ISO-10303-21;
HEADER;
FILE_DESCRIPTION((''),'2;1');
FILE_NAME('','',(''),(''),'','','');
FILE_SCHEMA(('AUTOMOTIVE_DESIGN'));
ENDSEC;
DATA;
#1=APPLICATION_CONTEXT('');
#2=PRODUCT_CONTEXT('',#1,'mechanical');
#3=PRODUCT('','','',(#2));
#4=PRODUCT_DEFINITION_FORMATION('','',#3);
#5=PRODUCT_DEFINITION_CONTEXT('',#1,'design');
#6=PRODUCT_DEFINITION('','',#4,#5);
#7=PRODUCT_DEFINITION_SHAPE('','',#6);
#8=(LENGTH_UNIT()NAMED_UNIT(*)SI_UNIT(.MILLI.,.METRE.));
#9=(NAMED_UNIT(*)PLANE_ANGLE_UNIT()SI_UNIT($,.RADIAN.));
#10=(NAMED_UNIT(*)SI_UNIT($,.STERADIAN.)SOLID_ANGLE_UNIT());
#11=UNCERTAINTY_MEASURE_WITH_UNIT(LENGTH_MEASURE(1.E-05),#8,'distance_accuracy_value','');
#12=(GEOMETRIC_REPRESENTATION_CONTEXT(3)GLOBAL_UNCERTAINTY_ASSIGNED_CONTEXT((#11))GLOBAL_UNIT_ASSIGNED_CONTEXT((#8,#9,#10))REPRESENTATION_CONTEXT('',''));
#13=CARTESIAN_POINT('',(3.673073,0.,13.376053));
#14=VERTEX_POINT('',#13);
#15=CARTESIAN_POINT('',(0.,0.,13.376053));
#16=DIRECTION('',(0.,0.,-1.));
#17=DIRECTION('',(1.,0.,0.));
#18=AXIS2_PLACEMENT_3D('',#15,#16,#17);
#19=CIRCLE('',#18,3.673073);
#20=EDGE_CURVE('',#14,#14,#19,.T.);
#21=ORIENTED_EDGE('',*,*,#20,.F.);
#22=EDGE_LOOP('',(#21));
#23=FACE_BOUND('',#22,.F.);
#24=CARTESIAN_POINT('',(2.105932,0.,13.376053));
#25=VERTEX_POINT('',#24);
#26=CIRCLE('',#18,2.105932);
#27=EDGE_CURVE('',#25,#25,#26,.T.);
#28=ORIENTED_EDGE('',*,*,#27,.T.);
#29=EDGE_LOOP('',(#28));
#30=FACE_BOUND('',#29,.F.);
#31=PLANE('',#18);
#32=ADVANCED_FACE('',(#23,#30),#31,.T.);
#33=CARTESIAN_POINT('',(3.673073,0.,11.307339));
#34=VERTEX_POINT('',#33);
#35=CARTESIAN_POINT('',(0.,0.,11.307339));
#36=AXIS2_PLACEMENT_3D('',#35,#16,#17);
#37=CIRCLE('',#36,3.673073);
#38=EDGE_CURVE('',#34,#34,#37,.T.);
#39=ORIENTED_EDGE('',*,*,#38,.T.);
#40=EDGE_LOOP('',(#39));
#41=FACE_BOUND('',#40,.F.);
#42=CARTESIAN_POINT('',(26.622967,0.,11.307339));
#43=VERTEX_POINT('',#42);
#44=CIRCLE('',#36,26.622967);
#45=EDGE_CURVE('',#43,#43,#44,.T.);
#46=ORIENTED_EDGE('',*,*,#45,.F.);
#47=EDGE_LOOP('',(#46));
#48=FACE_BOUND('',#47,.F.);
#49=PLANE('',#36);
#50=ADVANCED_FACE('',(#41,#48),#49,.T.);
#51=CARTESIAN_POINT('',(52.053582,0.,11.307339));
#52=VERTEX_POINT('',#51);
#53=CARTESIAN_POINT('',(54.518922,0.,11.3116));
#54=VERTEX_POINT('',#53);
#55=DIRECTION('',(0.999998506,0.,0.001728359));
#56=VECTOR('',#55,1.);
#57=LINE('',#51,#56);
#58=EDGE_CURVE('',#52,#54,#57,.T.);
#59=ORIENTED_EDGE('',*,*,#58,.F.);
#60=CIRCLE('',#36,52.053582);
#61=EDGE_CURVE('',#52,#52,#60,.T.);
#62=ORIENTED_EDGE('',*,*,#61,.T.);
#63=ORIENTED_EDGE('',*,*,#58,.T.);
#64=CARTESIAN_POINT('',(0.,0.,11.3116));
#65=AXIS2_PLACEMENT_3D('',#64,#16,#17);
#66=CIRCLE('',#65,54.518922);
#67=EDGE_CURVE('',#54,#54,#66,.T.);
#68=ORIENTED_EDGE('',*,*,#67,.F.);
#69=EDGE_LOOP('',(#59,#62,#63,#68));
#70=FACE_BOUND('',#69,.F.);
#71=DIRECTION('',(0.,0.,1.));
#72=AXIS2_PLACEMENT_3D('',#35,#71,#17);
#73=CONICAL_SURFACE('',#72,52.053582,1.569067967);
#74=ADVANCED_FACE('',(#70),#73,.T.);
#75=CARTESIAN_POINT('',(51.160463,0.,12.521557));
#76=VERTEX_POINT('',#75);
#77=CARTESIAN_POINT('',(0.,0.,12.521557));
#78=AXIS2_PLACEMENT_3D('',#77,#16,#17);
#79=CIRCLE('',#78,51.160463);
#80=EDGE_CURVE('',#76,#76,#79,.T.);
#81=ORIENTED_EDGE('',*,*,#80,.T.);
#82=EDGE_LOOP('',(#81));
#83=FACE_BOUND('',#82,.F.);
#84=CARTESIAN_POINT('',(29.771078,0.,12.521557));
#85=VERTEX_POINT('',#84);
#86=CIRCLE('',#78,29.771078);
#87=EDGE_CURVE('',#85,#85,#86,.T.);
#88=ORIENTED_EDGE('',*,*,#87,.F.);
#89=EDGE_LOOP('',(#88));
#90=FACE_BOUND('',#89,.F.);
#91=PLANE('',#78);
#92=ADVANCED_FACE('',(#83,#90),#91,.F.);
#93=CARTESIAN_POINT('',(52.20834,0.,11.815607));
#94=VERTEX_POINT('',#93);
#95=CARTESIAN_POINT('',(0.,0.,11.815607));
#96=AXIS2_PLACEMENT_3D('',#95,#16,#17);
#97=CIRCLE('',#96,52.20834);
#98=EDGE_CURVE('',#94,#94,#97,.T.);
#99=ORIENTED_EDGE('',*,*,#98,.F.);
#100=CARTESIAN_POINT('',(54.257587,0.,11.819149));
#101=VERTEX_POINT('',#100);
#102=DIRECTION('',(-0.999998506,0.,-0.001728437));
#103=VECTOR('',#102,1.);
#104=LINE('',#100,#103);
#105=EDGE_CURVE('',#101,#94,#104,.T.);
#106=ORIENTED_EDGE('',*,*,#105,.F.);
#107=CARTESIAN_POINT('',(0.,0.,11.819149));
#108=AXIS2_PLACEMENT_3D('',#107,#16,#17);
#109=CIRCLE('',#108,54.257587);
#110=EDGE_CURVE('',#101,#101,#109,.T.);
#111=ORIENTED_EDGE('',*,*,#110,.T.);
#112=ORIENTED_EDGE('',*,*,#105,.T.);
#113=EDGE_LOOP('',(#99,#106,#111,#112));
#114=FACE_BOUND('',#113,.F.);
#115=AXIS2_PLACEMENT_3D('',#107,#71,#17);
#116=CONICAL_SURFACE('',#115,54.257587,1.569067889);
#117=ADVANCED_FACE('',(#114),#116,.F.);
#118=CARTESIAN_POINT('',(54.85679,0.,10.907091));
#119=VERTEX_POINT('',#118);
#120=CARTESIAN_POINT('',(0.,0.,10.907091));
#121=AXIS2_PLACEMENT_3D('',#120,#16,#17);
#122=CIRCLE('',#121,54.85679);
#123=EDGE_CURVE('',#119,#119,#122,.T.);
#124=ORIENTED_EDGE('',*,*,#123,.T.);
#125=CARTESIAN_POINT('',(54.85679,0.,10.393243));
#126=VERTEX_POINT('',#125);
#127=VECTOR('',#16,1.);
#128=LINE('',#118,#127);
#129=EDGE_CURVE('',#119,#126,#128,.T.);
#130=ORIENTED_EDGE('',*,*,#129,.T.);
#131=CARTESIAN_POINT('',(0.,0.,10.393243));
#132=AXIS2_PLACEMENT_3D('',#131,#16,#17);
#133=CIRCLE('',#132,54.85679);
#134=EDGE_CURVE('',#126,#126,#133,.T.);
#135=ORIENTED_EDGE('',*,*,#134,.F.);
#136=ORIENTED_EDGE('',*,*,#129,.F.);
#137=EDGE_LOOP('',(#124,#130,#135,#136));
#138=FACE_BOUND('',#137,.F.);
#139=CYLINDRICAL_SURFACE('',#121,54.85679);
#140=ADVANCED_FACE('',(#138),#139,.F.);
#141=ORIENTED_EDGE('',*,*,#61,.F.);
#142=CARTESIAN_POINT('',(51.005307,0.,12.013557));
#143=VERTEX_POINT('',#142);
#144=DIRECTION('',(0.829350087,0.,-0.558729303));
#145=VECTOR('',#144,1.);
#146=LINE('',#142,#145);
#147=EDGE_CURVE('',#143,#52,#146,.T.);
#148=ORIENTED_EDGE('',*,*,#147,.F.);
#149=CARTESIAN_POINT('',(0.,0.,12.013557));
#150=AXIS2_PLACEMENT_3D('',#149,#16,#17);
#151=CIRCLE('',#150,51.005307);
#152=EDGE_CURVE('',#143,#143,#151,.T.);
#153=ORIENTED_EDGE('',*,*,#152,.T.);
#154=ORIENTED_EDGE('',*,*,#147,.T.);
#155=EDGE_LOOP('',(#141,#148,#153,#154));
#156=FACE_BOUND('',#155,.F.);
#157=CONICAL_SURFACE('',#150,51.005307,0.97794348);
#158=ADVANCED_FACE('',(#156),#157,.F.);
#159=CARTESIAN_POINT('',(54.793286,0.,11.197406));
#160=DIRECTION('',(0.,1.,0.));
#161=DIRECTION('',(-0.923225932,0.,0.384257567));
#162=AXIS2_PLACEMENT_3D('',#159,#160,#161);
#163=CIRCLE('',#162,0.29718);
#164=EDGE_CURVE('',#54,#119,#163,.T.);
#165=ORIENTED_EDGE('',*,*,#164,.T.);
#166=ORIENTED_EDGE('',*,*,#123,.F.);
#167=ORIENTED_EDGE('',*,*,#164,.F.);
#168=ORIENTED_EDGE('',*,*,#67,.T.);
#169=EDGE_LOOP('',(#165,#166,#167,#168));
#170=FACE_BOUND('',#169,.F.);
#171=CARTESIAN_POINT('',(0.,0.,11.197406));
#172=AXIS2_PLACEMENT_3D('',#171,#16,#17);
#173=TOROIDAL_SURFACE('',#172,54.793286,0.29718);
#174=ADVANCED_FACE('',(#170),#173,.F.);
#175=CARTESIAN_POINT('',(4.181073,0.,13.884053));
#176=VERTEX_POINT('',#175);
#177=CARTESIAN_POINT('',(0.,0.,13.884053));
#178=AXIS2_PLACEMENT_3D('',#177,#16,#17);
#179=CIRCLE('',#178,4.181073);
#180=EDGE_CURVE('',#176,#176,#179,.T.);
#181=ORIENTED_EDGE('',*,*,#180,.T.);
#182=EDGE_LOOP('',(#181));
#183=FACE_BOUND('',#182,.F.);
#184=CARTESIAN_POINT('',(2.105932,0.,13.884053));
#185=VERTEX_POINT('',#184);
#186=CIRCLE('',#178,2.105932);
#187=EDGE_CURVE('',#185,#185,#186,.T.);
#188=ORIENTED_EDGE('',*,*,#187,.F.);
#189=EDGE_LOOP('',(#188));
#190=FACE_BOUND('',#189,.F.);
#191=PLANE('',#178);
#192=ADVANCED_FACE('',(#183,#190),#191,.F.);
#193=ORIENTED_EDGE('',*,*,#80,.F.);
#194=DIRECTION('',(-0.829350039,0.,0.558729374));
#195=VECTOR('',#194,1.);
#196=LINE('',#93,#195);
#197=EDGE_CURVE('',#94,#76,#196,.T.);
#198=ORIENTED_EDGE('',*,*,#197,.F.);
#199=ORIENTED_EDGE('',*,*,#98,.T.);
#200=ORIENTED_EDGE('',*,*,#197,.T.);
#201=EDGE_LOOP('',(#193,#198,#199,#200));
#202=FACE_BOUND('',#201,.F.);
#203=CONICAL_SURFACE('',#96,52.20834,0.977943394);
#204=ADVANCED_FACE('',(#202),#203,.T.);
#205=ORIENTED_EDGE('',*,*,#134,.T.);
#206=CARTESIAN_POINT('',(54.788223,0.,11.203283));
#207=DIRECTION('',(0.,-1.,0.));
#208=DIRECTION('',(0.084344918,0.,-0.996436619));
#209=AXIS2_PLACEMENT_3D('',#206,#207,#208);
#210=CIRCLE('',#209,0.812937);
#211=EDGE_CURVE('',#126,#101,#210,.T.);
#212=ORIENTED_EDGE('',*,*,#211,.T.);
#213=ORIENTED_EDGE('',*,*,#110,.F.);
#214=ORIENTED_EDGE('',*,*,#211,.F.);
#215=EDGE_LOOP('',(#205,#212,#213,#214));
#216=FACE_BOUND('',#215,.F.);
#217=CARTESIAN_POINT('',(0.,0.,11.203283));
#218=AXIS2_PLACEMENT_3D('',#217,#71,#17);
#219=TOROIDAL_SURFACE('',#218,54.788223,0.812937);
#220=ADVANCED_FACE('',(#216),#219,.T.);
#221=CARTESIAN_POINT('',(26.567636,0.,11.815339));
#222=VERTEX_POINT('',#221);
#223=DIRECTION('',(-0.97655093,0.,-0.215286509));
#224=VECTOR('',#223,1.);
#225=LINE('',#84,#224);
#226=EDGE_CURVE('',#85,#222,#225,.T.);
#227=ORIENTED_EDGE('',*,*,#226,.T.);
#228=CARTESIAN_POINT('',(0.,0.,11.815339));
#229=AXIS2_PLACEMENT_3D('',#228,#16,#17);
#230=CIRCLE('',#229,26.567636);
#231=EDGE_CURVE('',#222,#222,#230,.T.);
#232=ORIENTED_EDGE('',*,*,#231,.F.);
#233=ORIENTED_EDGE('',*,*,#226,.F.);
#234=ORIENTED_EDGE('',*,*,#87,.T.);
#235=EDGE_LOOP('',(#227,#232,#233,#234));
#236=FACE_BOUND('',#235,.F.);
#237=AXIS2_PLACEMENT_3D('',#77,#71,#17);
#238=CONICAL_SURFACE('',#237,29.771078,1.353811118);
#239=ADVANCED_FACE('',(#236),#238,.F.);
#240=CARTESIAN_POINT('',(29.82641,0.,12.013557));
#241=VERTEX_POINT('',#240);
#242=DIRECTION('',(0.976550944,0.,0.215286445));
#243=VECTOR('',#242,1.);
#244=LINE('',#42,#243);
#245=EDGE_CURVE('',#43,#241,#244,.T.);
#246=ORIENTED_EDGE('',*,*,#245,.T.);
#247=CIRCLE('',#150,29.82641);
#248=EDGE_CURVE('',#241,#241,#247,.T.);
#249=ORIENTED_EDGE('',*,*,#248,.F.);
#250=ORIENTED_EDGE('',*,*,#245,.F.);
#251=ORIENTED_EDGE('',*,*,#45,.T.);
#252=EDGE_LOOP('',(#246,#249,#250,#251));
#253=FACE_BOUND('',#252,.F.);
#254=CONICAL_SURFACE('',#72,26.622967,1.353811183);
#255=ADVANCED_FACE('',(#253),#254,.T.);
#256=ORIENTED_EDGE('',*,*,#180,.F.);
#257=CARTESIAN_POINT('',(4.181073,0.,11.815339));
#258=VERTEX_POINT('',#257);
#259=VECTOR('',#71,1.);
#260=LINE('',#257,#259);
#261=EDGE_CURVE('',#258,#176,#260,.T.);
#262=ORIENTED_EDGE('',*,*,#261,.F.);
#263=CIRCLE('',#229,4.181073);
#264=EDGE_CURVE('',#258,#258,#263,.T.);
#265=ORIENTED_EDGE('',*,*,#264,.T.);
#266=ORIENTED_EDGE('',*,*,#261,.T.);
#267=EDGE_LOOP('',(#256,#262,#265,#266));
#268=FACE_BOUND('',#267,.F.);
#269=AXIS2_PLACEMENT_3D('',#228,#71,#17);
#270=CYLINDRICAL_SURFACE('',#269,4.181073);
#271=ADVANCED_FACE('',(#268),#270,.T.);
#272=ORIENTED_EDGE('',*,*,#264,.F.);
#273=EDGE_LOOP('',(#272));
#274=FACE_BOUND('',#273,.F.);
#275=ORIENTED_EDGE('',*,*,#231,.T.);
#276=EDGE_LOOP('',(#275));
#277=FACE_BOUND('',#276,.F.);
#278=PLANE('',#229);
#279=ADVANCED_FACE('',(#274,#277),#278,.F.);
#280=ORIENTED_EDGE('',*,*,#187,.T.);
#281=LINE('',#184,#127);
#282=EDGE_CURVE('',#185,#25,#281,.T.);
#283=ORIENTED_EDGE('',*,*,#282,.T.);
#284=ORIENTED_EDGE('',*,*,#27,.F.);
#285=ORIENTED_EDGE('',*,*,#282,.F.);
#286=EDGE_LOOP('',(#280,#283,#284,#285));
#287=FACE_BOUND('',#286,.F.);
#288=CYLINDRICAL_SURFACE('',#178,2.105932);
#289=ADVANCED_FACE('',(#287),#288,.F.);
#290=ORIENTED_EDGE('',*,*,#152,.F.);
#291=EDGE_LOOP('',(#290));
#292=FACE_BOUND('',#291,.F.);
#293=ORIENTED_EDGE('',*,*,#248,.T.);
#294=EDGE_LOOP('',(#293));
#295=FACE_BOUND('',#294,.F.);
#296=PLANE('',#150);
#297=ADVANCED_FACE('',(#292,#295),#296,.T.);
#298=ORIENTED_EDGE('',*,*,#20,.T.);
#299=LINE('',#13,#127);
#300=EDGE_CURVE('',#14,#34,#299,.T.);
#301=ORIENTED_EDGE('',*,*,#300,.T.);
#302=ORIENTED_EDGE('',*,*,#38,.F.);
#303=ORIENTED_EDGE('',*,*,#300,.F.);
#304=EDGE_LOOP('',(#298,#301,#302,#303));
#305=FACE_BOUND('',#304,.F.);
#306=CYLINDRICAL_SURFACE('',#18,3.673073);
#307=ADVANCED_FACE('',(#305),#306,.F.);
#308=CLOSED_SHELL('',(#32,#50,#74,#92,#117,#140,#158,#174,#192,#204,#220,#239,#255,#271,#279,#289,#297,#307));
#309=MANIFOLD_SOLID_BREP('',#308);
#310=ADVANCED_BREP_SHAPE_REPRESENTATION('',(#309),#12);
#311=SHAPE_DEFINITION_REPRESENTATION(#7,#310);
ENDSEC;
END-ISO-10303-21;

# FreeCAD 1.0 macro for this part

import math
import FreeCAD as App
import Part
import Sketcher
Q = App.Units.Quantity

doc = App.newDocument("Part")
body = doc.addObject("PartDesign::Body", "Body")

sketch1 = body.newObject("Sketcher::SketchObject", "Sketch")
sketch1.AttachmentSupport = (doc.getObject("XZ_Plane"), [""])
sketch1.MapMode = "FlatFace"
sketch1.addGeometry([
    Part.ArcOfCircle(Part.Circle(App.Vector(54.793286, 11.197406, 0), App.Vector(0, 0, 1), 0.29718), math.radians(-77.661393), math.radians(157.402343)),
    Part.LineSegment(App.Vector(54.85679, 10.907091, 0), App.Vector(54.85679, 10.393243, 0)),
    Part.ArcOfCircle(Part.Circle(App.Vector(54.788223, 11.203283, 0), App.Vector(0, 0, 1), 0.812937), math.radians(-85.161644), math.radians(130.748483)),
    Part.LineSegment(App.Vector(54.257587, 11.819149, 0), App.Vector(52.20834, 11.815607, 0)),
    Part.LineSegment(App.Vector(52.20834, 11.815607, 0), App.Vector(51.160463, 12.521557, 0)),
    Part.LineSegment(App.Vector(51.160463, 12.521557, 0), App.Vector(29.771078, 12.521557, 0)),
    Part.LineSegment(App.Vector(29.771078, 12.521557, 0), App.Vector(26.567636, 11.815339, 0)),
    Part.LineSegment(App.Vector(26.567636, 11.815339, 0), App.Vector(4.181073, 11.815339, 0)),
    Part.LineSegment(App.Vector(4.181073, 11.815339, 0), App.Vector(4.181073, 13.884053, 0)),
    Part.LineSegment(App.Vector(4.181073, 13.884053, 0), App.Vector(2.105932, 13.884053, 0)),
    Part.LineSegment(App.Vector(2.105932, 13.884053, 0), App.Vector(2.105932, 13.376053, 0)),
    Part.LineSegment(App.Vector(2.105932, 13.376053, 0), App.Vector(3.673073, 13.376053, 0)),
    Part.LineSegment(App.Vector(3.673073, 13.376053, 0), App.Vector(3.673073, 11.307339, 0)),
    Part.LineSegment(App.Vector(3.673073, 11.307339, 0), App.Vector(26.622967, 11.307339, 0)),
    Part.LineSegment(App.Vector(26.622967, 11.307339, 0), App.Vector(29.82641, 12.013557, 0)),
    Part.LineSegment(App.Vector(29.82641, 12.013557, 0), App.Vector(51.005307, 12.013557, 0)),
    Part.LineSegment(App.Vector(51.005307, 12.013557, 0), App.Vector(52.053582, 11.307339, 0)),
    Part.LineSegment(App.Vector(52.053582, 11.307339, 0), App.Vector(54.518922, 11.3116, 0)),
], False)
sketch1.addConstraint([
    Sketcher.Constraint("Coincident", 0, 1, 1, 1),
    Sketcher.Constraint("Coincident", 1, 2, 2, 1),
    Sketcher.Constraint("Coincident", 2, 2, 3, 1),
    Sketcher.Constraint("Coincident", 3, 2, 4, 1),
    Sketcher.Constraint("Coincident", 4, 2, 5, 1),
    Sketcher.Constraint("Coincident", 5, 2, 6, 1),
    Sketcher.Constraint("Coincident", 6, 2, 7, 1),
    Sketcher.Constraint("Coincident", 7, 2, 8, 1),
    Sketcher.Constraint("Coincident", 8, 2, 9, 1),
    Sketcher.Constraint("Coincident", 9, 2, 10, 1),
    Sketcher.Constraint("Coincident", 10, 2, 11, 1),
    Sketcher.Constraint("Coincident", 11, 2, 12, 1),
    Sketcher.Constraint("Coincident", 12, 2, 13, 1),
    Sketcher.Constraint("Coincident", 13, 2, 14, 1),
    Sketcher.Constraint("Coincident", 14, 2, 15, 1),
    Sketcher.Constraint("Coincident", 15, 2, 16, 1),
    Sketcher.Constraint("Coincident", 16, 2, 17, 1),
    Sketcher.Constraint("Coincident", 17, 2, 0, 2),
    Sketcher.Constraint("Vertical", 1),
    Sketcher.Constraint("Horizontal", 5),
    Sketcher.Constraint("Horizontal", 7),
    Sketcher.Constraint("Vertical", 8),
    Sketcher.Constraint("Horizontal", 9),
    Sketcher.Constraint("Vertical", 10),
    Sketcher.Constraint("Horizontal", 11),
    Sketcher.Constraint("Vertical", 12),
    Sketcher.Constraint("Horizontal", 13),
    Sketcher.Constraint("Horizontal", 15),
    Sketcher.Constraint("Parallel", 6, 14),
    Sketcher.Constraint("Parallel", 4, 16),
    Sketcher.Constraint("Parallel", 3, 17),
    Sketcher.Constraint("Horizontal", 13, 2, 16, 2),
    Sketcher.Constraint("Equal", 8, 12),
    Sketcher.Constraint("Equal", 6, 14),
    Sketcher.Constraint("DistanceY", 10, 2, 10, 1, Q("0.02 in")),
    Sketcher.Constraint("Radius", 0, Q("0.0117 in")),
    Sketcher.Constraint("DistanceX", 11, 2, 8, 2, Q("0.02 in")),
    Sketcher.Constraint("Radius", 2, 0.812937),
    Sketcher.Constraint("DistanceX", 0, 3, 0, 1, Q("0.0025002 in")),
    Sketcher.Constraint("DistanceX", 9, 2, 9, 1, 2.075141),
    Sketcher.Constraint("DistanceY", -1, 1, 17, 2, 11.3116),
    Sketcher.Constraint("DistanceX", 2, 2, 0, 3, 0.535699),
    Sketcher.Constraint("DistanceY", 0, 3, 3, 2, 0.618201),
    Sketcher.Constraint("DistanceX", 17, 2, 2, 3, 0.269301),
    Sketcher.Constraint("Distance", 3, 2.04925),
    Sketcher.Constraint("Distance", 4, 1.263492),
    Sketcher.Constraint("Distance", 16, 1.263972),
    Sketcher.Constraint("DistanceX", 5, 2, 5, 1, 21.389385),
    Sketcher.Constraint("DistanceX", 7, 2, 7, 1, 22.386563),
    Sketcher.Constraint("DistanceX", 13, 1, 13, 2, 22.949894),
    Sketcher.Constraint("DistanceX", 15, 1, 15, 2, 21.178897),
    Sketcher.Constraint("DistanceY", 1, 2, 1, 1, 0.513848),
    Sketcher.Constraint("DistanceY", 8, 1, 8, 2, 2.068714),
    Sketcher.Constraint("DistanceX", -1, 1, 0, 1, 54.85679),
    Sketcher.Constraint("DistanceX", -1, 1, 14, 2, 29.82641),
    Sketcher.Constraint("DistanceX", 6, 2, 5, 2, 3.203442),
])
revolution = body.newObject("PartDesign::Revolution", "Revolution")
revolution.Profile = sketch1
revolution.ReferenceAxis = (sketch1, ["V_Axis"])
revolution.Angle = 360

doc.recompute()
